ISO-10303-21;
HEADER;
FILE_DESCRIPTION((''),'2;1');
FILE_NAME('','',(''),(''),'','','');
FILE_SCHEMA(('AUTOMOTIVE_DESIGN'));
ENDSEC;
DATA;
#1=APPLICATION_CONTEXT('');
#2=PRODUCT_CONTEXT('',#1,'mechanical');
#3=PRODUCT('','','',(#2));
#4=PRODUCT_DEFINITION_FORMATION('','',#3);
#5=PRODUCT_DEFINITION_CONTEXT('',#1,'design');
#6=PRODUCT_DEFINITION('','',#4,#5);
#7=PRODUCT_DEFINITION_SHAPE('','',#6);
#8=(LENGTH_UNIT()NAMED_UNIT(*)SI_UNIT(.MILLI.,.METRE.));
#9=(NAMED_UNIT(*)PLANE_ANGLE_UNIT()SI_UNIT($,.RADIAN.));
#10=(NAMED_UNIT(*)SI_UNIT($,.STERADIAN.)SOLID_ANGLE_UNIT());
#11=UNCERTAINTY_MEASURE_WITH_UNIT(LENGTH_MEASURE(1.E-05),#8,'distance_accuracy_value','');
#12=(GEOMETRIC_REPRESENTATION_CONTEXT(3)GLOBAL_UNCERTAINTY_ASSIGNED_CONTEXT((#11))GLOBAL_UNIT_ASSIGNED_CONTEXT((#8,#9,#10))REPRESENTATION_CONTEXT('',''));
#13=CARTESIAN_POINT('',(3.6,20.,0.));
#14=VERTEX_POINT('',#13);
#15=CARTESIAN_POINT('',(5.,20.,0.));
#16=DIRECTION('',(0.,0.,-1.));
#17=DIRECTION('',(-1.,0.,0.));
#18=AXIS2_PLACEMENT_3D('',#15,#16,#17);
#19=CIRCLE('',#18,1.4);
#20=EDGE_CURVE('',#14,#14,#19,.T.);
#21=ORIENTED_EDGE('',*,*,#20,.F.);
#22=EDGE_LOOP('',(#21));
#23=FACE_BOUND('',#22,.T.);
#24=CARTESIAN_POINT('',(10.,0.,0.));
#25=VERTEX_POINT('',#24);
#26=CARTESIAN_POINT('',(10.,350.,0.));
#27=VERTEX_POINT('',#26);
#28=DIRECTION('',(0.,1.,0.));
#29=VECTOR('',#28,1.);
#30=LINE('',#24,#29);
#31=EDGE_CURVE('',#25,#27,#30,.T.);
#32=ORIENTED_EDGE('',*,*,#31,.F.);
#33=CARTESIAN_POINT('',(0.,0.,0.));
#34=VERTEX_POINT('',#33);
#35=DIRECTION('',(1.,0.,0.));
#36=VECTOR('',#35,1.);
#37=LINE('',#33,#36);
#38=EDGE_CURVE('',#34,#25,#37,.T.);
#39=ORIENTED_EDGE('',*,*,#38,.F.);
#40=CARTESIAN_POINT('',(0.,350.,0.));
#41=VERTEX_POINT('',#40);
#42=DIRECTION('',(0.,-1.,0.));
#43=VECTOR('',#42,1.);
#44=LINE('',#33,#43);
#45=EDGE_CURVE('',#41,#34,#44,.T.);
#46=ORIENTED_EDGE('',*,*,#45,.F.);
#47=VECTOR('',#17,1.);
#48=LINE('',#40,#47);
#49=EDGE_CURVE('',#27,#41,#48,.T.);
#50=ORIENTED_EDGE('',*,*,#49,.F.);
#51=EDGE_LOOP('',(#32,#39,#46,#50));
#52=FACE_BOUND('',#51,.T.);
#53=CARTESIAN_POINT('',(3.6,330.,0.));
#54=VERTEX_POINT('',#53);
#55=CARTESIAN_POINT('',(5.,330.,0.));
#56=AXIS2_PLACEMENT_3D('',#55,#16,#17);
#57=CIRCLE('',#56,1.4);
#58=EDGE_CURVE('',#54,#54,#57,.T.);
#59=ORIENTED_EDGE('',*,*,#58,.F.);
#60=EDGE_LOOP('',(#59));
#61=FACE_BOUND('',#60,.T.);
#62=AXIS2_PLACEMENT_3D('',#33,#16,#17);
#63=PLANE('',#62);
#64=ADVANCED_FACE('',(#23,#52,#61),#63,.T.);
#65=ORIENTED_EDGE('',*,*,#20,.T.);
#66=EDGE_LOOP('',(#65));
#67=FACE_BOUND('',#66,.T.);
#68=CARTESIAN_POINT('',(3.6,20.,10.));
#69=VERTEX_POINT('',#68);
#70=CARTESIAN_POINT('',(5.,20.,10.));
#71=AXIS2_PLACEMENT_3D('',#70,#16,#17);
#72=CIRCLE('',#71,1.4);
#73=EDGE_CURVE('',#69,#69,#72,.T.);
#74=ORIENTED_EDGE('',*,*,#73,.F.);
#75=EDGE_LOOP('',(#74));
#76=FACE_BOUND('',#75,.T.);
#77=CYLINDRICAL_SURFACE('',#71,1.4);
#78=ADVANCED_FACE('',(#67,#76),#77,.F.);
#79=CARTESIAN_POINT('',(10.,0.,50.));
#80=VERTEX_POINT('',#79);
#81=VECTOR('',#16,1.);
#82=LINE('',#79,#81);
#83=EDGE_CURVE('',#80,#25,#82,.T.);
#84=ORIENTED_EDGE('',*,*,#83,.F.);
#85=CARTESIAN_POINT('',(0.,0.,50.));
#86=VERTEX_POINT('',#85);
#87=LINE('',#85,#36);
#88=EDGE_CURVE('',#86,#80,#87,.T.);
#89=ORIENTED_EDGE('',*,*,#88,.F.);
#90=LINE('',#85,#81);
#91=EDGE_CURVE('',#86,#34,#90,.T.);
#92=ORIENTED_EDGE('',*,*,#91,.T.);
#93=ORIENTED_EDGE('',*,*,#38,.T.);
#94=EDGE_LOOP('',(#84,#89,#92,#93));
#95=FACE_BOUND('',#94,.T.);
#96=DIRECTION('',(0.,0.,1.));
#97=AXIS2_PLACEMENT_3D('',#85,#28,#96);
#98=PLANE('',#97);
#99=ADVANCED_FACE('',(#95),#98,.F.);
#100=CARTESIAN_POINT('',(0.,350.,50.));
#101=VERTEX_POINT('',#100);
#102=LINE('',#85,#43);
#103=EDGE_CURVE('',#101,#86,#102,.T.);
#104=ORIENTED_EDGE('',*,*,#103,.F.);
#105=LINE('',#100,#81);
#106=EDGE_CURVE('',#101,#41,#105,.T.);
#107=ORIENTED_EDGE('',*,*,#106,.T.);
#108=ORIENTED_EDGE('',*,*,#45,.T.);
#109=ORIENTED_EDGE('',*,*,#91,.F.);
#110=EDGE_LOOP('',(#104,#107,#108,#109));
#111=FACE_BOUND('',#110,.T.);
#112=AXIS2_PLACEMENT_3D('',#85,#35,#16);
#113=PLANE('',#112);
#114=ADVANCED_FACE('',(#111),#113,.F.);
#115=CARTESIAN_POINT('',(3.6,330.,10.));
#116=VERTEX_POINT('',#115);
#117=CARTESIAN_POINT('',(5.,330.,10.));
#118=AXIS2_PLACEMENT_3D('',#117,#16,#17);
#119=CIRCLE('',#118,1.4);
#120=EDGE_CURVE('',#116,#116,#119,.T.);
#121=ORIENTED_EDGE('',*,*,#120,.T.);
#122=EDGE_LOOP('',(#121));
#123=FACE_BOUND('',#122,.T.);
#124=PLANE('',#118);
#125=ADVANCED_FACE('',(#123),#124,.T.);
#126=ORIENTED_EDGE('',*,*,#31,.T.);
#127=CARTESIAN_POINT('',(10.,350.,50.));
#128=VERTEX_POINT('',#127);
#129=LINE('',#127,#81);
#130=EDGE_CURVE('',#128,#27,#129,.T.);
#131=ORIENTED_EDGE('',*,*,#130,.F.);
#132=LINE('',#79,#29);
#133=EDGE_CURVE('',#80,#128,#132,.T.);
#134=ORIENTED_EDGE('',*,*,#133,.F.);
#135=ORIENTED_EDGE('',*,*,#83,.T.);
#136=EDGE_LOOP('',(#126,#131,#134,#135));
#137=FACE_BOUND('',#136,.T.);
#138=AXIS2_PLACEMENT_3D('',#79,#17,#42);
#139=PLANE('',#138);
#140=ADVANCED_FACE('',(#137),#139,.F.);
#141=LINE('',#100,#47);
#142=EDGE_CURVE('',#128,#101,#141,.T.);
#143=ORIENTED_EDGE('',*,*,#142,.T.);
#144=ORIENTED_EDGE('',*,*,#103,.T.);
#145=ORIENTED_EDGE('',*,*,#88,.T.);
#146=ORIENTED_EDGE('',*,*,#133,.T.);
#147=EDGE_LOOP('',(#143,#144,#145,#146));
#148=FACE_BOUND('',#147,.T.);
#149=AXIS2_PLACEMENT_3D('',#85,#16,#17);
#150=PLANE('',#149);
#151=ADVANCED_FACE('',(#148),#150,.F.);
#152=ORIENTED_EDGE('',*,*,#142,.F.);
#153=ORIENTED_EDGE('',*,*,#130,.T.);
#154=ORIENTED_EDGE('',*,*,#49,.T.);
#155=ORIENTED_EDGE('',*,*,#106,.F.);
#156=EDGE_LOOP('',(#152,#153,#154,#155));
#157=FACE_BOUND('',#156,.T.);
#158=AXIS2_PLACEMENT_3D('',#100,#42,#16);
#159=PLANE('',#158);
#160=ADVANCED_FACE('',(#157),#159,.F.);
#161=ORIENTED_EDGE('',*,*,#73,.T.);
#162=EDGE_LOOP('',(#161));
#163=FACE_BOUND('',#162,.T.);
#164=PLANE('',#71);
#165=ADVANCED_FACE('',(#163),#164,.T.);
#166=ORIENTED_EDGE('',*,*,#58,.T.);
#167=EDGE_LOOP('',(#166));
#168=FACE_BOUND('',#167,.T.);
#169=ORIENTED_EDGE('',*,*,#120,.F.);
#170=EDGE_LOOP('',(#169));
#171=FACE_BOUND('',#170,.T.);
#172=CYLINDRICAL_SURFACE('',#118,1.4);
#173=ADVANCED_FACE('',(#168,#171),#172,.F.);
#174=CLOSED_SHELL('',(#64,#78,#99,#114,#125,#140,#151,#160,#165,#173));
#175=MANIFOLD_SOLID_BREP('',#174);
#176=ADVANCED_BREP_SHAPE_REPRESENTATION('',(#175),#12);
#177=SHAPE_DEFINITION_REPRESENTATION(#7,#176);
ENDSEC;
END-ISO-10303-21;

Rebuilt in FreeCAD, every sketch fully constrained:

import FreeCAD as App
import Part
import Sketcher
from FreeCAD import Vector
Q = App.Units.Quantity


def add_polygon(sketch, points):
    """Adds a closed chain of lines whose ends are joined by coincident constraints."""
    first, n = sketch.GeometryCount, len(points)
    for a, b in zip(points, points[1:] + points[:1]):
        sketch.addGeometry(Part.LineSegment(App.Vector(*a, 0), App.Vector(*b, 0)), False)
    for i in range(n):
        sketch.addConstraint(Sketcher.Constraint("Coincident", first + i, 2, first + (i + 1) % n, 1))

doc = App.newDocument("Part")
params = doc.addObject("Spreadsheet::Sheet", "Params")
for row, (alias, value) in enumerate([
    ("sketch1_width", "10 mm"),
    ("sketch1_height", "350 mm"),
    ("pad1_length", "50 mm"),
    ("sketch2_diameter", "2.8 mm"),
    ("pocket1_length", "10 mm"),
], start=1):
    params.set(f"A{row}", alias)
    params.set(f"B{row}", "=" + value)
    params.setAlias(f"B{row}", alias)

body = doc.addObject("PartDesign::Body", "Body")

# Sketch on XY plane
sketch1 = doc.addObject("Sketcher::SketchObject", "Sketch")
body.addObject(sketch1)
sketch1.AttachmentSupport = (doc.XY_Plane, [""])
sketch1.MapMode = "FlatFace"
add_polygon(sketch1, [(0, 350), (0, 0), (10, 0), (10, 350)])  # lines 0-3
sketch1.addConstraint([
    Sketcher.Constraint("Vertical", 0),
    Sketcher.Constraint("Horizontal", 1),
    Sketcher.Constraint("Vertical", 2),
    Sketcher.Constraint("Horizontal", 3),
    Sketcher.Constraint("Coincident", 0, 2, -1, 1),
    Sketcher.Constraint("DistanceX", 1, 1, 1, 2, Q("10 mm")),
    Sketcher.Constraint("DistanceY", 0, 2, 0, 1, Q("350 mm")),
])
sketch1.setExpression("Constraints[9]", "Params.sketch1_width")
sketch1.setExpression("Constraints[10]", "Params.sketch1_height")
pad1 = doc.addObject("PartDesign::Pad", "Pad")
body.addObject(pad1)
pad1.Profile = sketch1
pad1.setExpression("Length", "Params.pad1_length")

# Sketch on XY plane
sketch2 = doc.addObject("Sketcher::SketchObject", "Sketch001")
body.addObject(sketch2)
sketch2.AttachmentSupport = (doc.XY_Plane, [""])
sketch2.MapMode = "FlatFace"
sketch2.addGeometry([
    Part.Circle(Vector(5, 330, 0), Vector(0, 0, 1), 1.4),
    Part.Circle(Vector(5, 20, 0), Vector(0, 0, 1), 1.4),
], False)
sketch2.addConstraint([
    Sketcher.Constraint("Equal", 0, 1),
    Sketcher.Constraint("Vertical", 0, 3, 1, 3),
    Sketcher.Constraint("Diameter", 0, Q("2.8 mm")),
    Sketcher.Constraint("DistanceX", -1, 1, 0, 3, Q("5 mm")),
    Sketcher.Constraint("DistanceY", -1, 1, 0, 3, Q("330 mm")),
    Sketcher.Constraint("DistanceY", -1, 1, 1, 3, Q("20 mm")),
])
sketch2.setExpression("Constraints[2]", "Params.sketch2_diameter")
pocket1 = doc.addObject("PartDesign::Pocket", "Pocket")
body.addObject(pocket1)
pocket1.Profile = sketch2
pocket1.setExpression("Length", "Params.pocket1_length")
pocket1.Reversed = True

doc.recompute()
